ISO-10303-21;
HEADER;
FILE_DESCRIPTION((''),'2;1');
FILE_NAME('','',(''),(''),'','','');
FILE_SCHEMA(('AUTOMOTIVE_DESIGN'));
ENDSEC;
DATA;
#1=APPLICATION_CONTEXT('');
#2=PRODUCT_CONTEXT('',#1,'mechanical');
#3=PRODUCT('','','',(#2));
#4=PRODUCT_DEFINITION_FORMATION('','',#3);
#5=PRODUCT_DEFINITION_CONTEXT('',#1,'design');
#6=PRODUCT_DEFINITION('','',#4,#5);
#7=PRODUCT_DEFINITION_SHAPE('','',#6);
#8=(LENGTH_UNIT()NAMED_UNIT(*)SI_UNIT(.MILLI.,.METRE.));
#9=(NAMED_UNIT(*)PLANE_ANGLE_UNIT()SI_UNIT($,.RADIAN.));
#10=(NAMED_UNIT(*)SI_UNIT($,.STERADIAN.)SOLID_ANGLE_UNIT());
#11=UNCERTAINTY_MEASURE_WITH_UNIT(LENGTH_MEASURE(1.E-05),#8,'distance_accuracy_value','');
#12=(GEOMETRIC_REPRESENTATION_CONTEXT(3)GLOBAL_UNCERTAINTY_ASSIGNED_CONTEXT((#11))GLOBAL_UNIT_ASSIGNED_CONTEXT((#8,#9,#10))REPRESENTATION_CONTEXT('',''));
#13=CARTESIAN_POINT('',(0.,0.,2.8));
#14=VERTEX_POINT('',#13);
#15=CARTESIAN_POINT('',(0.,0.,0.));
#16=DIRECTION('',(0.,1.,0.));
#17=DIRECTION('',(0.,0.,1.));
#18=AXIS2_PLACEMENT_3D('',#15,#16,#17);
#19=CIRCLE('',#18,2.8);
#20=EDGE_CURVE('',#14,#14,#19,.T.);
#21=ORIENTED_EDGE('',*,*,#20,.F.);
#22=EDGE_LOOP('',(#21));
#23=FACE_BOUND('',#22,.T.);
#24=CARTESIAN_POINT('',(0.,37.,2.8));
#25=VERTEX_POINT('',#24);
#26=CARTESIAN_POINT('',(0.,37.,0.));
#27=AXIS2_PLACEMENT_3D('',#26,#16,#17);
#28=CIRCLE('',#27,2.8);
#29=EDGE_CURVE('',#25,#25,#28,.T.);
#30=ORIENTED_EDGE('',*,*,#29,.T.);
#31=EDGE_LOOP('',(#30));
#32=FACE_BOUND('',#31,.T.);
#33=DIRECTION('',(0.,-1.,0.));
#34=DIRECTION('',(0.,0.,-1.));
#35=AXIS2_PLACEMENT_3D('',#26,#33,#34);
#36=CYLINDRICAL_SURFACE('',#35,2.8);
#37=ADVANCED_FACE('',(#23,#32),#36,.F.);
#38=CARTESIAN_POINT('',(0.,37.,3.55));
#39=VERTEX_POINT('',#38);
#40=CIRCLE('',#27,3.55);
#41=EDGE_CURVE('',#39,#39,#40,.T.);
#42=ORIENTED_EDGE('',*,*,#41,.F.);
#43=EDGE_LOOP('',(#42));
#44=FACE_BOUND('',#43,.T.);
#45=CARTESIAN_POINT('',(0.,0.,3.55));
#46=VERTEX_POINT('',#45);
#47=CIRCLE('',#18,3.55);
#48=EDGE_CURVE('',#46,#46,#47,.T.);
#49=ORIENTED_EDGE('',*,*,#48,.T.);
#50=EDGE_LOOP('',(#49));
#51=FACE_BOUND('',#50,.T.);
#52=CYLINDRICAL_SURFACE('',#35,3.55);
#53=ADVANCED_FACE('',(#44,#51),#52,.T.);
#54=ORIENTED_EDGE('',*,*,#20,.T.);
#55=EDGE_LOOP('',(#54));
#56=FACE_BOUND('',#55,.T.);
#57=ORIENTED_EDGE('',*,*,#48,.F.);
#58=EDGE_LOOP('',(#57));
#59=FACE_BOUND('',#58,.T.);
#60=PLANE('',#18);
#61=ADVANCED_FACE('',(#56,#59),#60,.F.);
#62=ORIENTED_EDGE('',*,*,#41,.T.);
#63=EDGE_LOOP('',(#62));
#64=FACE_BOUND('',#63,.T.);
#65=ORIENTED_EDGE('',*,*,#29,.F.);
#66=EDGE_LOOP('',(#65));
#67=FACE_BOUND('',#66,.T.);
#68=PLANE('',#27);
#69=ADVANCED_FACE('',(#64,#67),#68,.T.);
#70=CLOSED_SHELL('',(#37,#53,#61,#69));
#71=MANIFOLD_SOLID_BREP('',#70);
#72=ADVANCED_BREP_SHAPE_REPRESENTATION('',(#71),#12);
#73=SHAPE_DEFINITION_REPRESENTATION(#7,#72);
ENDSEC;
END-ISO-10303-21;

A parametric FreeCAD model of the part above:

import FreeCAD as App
import Part
import Sketcher

V = App.Vector
Q = App.Units.Quantity

doc = App.newDocument("Part")
body = doc.addObject("PartDesign::Body", "Body")

# Sketch on XZ plane
sketch1 = body.newObject("Sketcher::SketchObject", "Sketch")
sketch1.AttachmentSupport = (doc.getObject("XZ_Plane"), [""])
sketch1.MapMode = "FlatFace"
sketch1.addGeometry(Part.Circle(V(0, 0, 0), V(0, 0, 1), 3.5), False)
sketch1.addGeometry(Part.Circle(V(0, 0, 0), V(0, 0, 1), 2.8), False)
sketch1.addConstraint(Sketcher.Constraint("Coincident", 0, 3, -1, 1))
sketch1.addConstraint(Sketcher.Constraint("Coincident", 1, 3, -1, 1))
sketch1.addConstraint(Sketcher.Constraint("Diameter", 0, Q("7.1 mm")))
sketch1.addConstraint(Sketcher.Constraint("Diameter", 1, Q("5.6 mm")))
pad1 = body.newObject("PartDesign::Pad", "Pad")
pad1.Profile = sketch1
pad1.Length = 37
pad1.Reversed = True

doc.recompute()
